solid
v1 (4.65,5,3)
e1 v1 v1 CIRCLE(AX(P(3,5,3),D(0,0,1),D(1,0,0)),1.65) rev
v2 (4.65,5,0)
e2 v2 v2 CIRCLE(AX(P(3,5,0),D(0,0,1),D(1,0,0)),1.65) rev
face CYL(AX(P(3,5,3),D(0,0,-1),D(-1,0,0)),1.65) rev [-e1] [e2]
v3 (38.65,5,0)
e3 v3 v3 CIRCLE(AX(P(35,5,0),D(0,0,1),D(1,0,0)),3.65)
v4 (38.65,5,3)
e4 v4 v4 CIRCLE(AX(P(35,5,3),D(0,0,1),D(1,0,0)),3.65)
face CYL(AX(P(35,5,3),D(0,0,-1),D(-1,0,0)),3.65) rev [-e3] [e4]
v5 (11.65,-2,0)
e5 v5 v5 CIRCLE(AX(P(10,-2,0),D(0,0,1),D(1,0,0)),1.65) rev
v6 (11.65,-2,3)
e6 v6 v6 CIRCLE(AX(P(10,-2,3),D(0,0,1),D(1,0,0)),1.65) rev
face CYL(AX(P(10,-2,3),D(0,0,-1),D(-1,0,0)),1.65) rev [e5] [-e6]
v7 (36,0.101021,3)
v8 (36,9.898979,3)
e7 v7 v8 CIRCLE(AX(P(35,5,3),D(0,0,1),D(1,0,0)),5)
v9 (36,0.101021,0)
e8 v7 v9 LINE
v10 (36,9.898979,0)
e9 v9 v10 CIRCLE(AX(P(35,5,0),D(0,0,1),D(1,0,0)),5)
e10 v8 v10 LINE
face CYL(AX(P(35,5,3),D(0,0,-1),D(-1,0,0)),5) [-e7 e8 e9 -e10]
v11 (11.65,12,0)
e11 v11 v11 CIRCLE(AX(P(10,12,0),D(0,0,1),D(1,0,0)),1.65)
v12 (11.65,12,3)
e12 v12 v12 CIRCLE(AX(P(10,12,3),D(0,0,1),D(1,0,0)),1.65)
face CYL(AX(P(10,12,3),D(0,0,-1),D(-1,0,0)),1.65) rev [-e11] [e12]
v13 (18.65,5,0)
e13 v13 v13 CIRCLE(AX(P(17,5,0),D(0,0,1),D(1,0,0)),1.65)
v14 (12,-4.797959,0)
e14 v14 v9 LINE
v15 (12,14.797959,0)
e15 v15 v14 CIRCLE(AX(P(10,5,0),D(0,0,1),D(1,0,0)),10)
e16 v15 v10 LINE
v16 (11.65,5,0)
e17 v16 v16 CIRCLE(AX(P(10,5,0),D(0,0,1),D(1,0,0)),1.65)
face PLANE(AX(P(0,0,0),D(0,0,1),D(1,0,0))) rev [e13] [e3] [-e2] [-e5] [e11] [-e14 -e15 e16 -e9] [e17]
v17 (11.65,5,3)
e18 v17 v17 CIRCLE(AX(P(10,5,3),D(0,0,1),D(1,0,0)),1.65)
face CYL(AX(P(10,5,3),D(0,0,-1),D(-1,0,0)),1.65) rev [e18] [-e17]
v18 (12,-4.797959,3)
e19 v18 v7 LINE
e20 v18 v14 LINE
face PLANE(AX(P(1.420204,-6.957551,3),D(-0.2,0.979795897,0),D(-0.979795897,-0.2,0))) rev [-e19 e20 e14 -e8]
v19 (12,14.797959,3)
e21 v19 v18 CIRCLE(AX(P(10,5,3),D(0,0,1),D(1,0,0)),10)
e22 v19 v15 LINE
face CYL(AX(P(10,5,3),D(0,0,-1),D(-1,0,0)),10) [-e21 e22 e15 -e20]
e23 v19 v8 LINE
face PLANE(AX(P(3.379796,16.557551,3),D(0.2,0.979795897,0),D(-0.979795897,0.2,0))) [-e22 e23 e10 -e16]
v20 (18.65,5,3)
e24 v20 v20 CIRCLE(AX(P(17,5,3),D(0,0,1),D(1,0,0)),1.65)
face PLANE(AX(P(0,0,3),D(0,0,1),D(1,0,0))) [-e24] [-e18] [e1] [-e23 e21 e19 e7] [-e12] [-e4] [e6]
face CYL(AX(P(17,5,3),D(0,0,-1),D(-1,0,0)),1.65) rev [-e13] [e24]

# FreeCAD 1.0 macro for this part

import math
import FreeCAD as App
import Part
import Sketcher
from FreeCAD import Vector

doc = App.newDocument("Part")
params = doc.addObject("Spreadsheet::Sheet", "Params")
for row, (alias, value) in enumerate([
    ("sketch1_radius", "10 mm"),
    ("sketch1_radius2", "5 mm"),
    ("sketch1_diameter", "3.3 mm"),
    ("sketch1_diameter2", "7.3 mm"),
    ("pad1_length", "3 mm"),
], start=1):
    params.set(f"A{row}", alias)
    params.set(f"B{row}", "=" + value)
    params.setAlias(f"B{row}", alias)

body = doc.addObject("PartDesign::Body", "Body")

sketch1 = body.newObject("Sketcher::SketchObject", "Sketch")
sketch1.AttachmentSupport = (doc.getObject("XY_Plane"), [""])
sketch1.MapMode = "FlatFace"
sketch1.addGeometry([
    Part.LineSegment(Vector(36, 9.9, 0), Vector(12, 14.8, 0)),
    Part.ArcOfCircle(Part.Circle(Vector(10, 5, 0), Vector(0, 0, 1), 10), math.radians(78), math.radians(282)),
    Part.LineSegment(Vector(12, -4.8, 0), Vector(36, 0.1, 0)),
    Part.ArcOfCircle(Part.Circle(Vector(35, 5, 0), Vector(0, 0, 1), 5), math.radians(-78), math.radians(78)),
    Part.Circle(Vector(10, -2, 0), Vector(0, 0, 1), 1.6),
    Part.Circle(Vector(3, 5, 0), Vector(0, 0, 1), 1.6),
    Part.Circle(Vector(10, 5, 0), Vector(0, 0, 1), 1.6),
    Part.Circle(Vector(17, 5, 0), Vector(0, 0, 1), 1.6),
    Part.Circle(Vector(10, 12, 0), Vector(0, 0, 1), 1.6),
    Part.Circle(Vector(35, 5, 0), Vector(0, 0, 1), 3.6),
], False)
sketch1.addConstraint([
    Sketcher.Constraint("Tangent", 0, 2, 1, 1),
    Sketcher.Constraint("Tangent", 1, 2, 2, 1),
    Sketcher.Constraint("Tangent", 2, 2, 3, 1),
    Sketcher.Constraint("Tangent", 3, 2, 0, 1),
    Sketcher.Constraint("Coincident", 6, 3, 1, 3),
    Sketcher.Constraint("Coincident", 9, 3, 3, 3),
    Sketcher.Constraint("Equal", 4, 5),
    Sketcher.Constraint("Equal", 5, 6),
    Sketcher.Constraint("Equal", 6, 7),
    Sketcher.Constraint("Equal", 7, 8),
    Sketcher.Constraint("Horizontal", 1, 3, 3, 3),
    Sketcher.Constraint("Horizontal", 3, 3, 5, 3),
    Sketcher.Constraint("Horizontal", 6, 3, 7, 3),
    Sketcher.Constraint("Vertical", 1, 3, 4, 3),
    Sketcher.Constraint("Vertical", 6, 3, 8, 3),
    Sketcher.Constraint("Radius", 1, 10.0),
    Sketcher.Constraint("Radius", 3, 5.0),
    Sketcher.Constraint("Diameter", 4, 3.3),
    Sketcher.Constraint("Diameter", 9, 7.3),
    Sketcher.Constraint("DistanceX", -1, 1, 1, 3, 10.0),
    Sketcher.Constraint("DistanceY", -1, 1, 1, 3, 5.0),
    Sketcher.Constraint("DistanceX", -1, 1, 3, 3, 35.0),
    Sketcher.Constraint("DistanceY", 4, 3, -1, 1, 2.0),
    Sketcher.Constraint("DistanceX", -1, 1, 5, 3, 3.0),
    Sketcher.Constraint("DistanceX", -1, 1, 7, 3, 17.0),
    Sketcher.Constraint("DistanceY", -1, 1, 8, 3, 12.0),
])
sketch1.setExpression("Constraints[15]", "Params.sketch1_radius")
sketch1.setExpression("Constraints[16]", "Params.sketch1_radius2")
sketch1.setExpression("Constraints[17]", "Params.sketch1_diameter")
sketch1.setExpression("Constraints[18]", "Params.sketch1_diameter2")
pad1 = body.newObject("PartDesign::Pad", "Pad")
pad1.Profile = sketch1
pad1.setExpression("Length", "Params.pad1_length")

doc.recompute()
